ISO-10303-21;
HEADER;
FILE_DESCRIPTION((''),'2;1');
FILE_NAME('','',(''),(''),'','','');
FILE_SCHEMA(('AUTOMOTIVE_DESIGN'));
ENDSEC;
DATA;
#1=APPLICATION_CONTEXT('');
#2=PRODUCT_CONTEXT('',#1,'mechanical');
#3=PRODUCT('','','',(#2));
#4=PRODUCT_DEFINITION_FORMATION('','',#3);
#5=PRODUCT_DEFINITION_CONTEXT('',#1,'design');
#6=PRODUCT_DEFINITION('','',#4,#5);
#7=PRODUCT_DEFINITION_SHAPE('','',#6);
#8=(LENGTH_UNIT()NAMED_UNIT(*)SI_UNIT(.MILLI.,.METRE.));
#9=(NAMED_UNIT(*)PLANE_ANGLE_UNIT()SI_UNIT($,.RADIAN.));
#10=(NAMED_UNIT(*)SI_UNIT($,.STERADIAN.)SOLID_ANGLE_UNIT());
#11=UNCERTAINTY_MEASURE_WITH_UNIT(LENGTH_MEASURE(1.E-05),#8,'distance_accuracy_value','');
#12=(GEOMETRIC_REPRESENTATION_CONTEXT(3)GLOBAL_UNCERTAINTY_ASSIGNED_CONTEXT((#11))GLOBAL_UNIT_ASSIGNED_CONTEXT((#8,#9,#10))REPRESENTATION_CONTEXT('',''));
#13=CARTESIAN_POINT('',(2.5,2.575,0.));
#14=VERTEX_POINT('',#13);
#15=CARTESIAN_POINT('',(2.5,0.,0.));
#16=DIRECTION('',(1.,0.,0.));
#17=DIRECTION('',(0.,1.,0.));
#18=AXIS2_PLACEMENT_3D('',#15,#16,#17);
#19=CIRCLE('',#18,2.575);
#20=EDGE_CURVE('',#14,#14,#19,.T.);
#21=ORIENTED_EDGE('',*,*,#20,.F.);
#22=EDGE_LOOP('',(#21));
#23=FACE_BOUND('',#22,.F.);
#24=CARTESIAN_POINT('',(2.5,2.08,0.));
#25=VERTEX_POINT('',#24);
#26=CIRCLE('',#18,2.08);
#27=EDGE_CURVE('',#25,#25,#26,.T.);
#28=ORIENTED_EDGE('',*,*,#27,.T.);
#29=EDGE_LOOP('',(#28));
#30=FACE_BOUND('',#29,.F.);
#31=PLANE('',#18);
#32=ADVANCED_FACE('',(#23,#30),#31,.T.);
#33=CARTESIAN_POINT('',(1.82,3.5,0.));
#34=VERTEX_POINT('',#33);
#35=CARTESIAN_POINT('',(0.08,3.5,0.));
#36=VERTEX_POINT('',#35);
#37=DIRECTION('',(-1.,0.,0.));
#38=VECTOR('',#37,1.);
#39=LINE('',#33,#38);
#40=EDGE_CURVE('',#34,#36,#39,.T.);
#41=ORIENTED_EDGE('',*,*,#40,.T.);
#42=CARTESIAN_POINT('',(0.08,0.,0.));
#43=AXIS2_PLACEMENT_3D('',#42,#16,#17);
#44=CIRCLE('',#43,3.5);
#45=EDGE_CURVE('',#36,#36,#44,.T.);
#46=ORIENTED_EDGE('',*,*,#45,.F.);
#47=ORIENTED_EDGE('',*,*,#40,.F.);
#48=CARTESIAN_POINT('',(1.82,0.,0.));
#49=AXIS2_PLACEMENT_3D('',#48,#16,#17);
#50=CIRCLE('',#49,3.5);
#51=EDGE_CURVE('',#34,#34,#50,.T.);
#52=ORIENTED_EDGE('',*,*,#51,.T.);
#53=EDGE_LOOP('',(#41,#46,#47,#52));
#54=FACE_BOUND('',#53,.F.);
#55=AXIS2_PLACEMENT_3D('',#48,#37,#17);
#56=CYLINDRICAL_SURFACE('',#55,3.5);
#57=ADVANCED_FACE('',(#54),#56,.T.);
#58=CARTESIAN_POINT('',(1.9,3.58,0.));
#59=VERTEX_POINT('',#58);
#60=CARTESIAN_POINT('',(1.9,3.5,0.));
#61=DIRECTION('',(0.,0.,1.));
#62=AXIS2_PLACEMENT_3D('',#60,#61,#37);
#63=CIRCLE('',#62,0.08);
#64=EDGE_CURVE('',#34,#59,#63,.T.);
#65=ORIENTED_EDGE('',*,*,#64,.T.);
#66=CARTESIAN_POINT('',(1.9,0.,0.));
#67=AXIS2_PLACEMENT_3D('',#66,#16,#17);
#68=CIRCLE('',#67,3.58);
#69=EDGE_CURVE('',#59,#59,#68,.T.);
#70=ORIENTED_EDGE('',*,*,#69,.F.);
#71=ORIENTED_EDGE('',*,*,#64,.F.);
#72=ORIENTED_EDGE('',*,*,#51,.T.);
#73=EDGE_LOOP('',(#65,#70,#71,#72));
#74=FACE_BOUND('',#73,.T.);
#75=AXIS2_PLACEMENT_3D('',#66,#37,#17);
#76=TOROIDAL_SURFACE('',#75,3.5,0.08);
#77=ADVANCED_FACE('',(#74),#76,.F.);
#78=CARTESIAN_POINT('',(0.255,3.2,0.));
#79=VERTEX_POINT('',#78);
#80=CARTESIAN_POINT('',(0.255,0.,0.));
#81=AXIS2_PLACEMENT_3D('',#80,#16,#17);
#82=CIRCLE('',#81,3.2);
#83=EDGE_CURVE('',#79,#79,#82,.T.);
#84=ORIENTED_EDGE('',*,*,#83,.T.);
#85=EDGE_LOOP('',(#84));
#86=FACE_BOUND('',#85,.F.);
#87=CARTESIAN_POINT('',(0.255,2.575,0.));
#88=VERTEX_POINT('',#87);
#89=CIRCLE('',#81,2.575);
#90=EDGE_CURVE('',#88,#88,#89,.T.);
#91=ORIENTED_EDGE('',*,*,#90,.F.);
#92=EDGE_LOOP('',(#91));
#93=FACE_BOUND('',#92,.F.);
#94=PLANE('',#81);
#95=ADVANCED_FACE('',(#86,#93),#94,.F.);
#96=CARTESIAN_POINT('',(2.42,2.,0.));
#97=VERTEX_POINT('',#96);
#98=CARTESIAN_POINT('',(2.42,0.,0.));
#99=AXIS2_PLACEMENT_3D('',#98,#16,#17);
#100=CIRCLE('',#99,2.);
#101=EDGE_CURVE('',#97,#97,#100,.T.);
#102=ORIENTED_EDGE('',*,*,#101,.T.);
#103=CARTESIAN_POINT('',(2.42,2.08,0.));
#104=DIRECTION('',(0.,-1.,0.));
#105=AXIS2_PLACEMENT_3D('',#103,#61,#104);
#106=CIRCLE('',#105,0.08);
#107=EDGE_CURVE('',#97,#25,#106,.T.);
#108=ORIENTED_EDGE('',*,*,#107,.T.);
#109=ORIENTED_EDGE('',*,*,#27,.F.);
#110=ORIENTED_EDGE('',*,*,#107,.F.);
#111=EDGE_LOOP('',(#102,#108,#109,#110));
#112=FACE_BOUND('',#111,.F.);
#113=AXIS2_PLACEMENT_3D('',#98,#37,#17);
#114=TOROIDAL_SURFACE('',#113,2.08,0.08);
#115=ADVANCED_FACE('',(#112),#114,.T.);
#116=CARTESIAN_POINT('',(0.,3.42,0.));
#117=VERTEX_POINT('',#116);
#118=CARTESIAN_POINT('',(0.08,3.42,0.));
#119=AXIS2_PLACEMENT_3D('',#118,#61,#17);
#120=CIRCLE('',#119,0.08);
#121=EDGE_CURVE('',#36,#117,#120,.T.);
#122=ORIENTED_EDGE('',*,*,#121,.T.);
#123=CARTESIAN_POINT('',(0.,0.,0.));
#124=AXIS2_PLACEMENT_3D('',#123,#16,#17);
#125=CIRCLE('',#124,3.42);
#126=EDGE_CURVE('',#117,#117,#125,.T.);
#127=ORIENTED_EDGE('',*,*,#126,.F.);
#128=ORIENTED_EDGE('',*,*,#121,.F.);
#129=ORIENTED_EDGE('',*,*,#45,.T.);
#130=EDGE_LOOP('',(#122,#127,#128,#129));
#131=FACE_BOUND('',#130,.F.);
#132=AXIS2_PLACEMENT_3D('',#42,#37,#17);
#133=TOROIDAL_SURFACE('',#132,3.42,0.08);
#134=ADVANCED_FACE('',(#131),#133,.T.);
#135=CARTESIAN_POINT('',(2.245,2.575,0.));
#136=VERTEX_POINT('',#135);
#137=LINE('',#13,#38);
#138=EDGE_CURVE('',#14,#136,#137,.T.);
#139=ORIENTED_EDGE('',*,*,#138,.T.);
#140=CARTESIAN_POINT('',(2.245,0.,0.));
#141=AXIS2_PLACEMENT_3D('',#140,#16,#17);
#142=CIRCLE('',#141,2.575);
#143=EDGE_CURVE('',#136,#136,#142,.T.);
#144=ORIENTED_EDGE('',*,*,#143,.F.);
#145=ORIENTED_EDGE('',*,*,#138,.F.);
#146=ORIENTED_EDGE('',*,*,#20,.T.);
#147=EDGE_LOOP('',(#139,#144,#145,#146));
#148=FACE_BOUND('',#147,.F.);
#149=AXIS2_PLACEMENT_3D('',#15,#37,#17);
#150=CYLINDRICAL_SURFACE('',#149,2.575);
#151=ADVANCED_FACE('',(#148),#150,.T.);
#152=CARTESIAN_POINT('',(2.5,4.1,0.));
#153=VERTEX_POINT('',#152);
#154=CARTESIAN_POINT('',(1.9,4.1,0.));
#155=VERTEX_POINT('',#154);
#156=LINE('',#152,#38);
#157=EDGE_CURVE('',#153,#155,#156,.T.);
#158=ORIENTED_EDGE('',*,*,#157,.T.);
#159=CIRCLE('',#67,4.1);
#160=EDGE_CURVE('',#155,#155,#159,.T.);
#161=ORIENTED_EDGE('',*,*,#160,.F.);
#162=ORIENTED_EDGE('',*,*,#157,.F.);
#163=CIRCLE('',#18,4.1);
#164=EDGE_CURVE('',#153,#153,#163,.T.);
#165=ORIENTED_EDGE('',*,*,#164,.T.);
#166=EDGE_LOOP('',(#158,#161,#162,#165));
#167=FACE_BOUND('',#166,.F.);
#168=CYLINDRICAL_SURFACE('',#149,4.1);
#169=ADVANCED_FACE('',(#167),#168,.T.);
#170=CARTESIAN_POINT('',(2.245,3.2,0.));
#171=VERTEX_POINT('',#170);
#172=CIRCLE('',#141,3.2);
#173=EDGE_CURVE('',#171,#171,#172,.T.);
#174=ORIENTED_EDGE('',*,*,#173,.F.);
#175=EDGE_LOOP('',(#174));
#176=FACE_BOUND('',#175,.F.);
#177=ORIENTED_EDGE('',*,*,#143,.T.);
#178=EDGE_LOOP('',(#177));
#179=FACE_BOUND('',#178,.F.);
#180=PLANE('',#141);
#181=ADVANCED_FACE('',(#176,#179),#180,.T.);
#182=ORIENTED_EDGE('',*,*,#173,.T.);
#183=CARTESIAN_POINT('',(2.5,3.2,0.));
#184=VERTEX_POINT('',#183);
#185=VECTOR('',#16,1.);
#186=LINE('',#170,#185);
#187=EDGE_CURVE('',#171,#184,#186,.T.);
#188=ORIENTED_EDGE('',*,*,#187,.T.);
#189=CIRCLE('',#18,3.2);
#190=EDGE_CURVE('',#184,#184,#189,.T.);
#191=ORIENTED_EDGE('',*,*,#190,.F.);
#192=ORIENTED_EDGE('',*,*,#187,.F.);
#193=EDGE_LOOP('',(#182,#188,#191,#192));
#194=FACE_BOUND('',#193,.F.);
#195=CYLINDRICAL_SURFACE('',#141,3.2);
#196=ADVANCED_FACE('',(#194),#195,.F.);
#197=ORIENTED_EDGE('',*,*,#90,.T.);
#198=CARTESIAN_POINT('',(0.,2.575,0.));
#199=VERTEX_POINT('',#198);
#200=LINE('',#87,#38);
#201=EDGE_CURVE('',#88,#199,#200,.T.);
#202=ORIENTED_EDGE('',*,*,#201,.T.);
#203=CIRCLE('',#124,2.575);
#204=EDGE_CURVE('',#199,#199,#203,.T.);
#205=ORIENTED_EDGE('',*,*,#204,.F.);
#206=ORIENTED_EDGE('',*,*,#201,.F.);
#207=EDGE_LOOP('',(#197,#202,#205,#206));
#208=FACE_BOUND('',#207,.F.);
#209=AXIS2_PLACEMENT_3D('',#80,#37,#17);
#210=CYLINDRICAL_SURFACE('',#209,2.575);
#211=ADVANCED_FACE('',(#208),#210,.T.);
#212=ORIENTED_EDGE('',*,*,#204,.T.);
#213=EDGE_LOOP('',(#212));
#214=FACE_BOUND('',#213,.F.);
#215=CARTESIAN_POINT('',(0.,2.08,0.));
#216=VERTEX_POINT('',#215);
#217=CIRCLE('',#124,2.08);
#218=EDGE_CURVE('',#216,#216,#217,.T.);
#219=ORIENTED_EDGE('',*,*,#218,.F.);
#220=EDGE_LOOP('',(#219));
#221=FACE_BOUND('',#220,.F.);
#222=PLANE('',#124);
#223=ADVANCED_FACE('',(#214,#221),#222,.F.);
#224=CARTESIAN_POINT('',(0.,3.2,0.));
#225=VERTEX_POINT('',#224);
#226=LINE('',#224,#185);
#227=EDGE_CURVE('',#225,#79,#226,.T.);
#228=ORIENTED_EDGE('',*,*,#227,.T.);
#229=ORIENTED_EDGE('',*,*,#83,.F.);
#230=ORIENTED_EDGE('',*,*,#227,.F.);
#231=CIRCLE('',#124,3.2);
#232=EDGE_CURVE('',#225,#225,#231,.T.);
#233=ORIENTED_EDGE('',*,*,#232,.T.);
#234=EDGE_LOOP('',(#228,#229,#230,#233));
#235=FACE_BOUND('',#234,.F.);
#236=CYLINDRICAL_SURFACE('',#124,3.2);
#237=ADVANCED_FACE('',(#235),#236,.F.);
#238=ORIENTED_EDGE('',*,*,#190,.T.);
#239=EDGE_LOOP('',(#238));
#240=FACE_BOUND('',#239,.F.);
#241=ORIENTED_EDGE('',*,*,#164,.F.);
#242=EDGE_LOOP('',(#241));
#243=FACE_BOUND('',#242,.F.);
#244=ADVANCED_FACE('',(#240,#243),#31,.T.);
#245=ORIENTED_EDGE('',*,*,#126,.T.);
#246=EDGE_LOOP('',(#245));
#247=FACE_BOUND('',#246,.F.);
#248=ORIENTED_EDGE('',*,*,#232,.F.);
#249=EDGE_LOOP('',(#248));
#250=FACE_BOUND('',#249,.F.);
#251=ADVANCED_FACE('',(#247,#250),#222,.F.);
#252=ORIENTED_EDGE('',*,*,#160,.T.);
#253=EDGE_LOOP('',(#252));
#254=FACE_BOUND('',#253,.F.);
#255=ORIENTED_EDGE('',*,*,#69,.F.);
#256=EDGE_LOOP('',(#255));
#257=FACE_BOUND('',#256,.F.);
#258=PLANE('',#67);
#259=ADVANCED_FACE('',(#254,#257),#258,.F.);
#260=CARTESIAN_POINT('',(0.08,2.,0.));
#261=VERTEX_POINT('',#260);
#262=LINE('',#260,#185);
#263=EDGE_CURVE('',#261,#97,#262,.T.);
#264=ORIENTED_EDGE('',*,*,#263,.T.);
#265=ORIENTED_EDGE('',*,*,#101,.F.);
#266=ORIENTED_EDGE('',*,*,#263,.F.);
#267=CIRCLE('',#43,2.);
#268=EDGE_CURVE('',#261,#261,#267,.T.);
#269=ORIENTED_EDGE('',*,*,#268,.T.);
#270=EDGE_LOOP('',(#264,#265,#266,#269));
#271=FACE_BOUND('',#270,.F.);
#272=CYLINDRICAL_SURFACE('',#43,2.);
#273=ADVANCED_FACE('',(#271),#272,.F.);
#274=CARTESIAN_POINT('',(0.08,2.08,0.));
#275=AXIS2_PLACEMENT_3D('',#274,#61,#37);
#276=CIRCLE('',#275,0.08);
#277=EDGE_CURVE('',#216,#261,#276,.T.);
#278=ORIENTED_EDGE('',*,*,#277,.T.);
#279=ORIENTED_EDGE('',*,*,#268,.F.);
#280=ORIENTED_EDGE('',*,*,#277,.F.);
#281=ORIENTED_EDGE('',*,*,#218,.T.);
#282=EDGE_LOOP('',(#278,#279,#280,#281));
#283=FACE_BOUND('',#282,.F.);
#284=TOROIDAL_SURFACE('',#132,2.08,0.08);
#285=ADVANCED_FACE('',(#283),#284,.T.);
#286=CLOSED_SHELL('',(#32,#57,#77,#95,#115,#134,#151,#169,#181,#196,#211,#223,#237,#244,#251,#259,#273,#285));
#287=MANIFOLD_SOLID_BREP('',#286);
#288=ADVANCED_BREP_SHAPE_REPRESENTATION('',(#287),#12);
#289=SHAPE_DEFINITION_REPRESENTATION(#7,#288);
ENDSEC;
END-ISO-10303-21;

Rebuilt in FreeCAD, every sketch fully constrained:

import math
import FreeCAD as App
import Part
import Sketcher

V = App.Vector

doc = App.newDocument("Part")
body = doc.addObject("PartDesign::Body", "Body")

# Sketch on XY plane
sketch1 = body.newObject("Sketcher::SketchObject", "Sketch")
sketch1.AttachmentSupport = (doc.getObject("XY_Plane"), [""])
sketch1.MapMode = "FlatFace"
sketch1.addGeometry([
    Part.LineSegment(V(0, 2.575, 0), V(0, 2.08, 0)),  # 0
    Part.ArcOfCircle(Part.Circle(V(0.08, 2.08, 0), V(0, 0, 1), 0.08), math.radians(180), math.radians(270)),  # 1
    Part.LineSegment(V(0.08, 2, 0), V(2.42, 2, 0)),  # 2
    Part.ArcOfCircle(Part.Circle(V(2.42, 2.08, 0), V(0, 0, 1), 0.08), math.radians(-90), math.radians(0)),  # 3
    Part.LineSegment(V(2.5, 2.08, 0), V(2.5, 2.575, 0)),  # 4
    Part.LineSegment(V(2.5, 2.575, 0), V(2.245, 2.575, 0)),  # 5
    Part.LineSegment(V(2.245, 2.575, 0), V(2.245, 3.2, 0)),  # 6
    Part.LineSegment(V(2.245, 3.2, 0), V(2.5, 3.2, 0)),  # 7
    Part.LineSegment(V(2.5, 3.2, 0), V(2.5, 4.1, 0)),  # 8
    Part.LineSegment(V(2.5, 4.1, 0), V(1.9, 4.1, 0)),  # 9
    Part.LineSegment(V(1.9, 4.1, 0), V(1.9, 3.58, 0)),  # 10
    Part.ArcOfCircle(Part.Circle(V(1.9, 3.5, 0), V(0, 0, 1), 0.08), math.radians(180), math.radians(450)),  # 11
    Part.LineSegment(V(1.82, 3.5, 0), V(0.08, 3.5, 0)),  # 12
    Part.ArcOfCircle(Part.Circle(V(0.08, 3.42, 0), V(0, 0, 1), 0.08), math.radians(90), math.radians(180)),  # 13
    Part.LineSegment(V(0, 3.42, 0), V(0, 3.2, 0)),  # 14
    Part.LineSegment(V(0, 3.2, 0), V(0.255, 3.2, 0)),  # 15
    Part.LineSegment(V(0.255, 3.2, 0), V(0.255, 2.575, 0)),  # 16
    Part.LineSegment(V(0.255, 2.575, 0), V(0, 2.575, 0)),  # 17
], False)
sketch1.addConstraint([
    Sketcher.Constraint("Tangent", 0, 2, 1, 1),
    Sketcher.Constraint("Tangent", 1, 2, 2, 1),
    Sketcher.Constraint("Tangent", 2, 2, 3, 1),
    Sketcher.Constraint("Tangent", 3, 2, 4, 1),
    Sketcher.Constraint("Coincident", 4, 2, 5, 1),
    Sketcher.Constraint("Coincident", 5, 2, 6, 1),
    Sketcher.Constraint("Coincident", 6, 2, 7, 1),
    Sketcher.Constraint("Coincident", 7, 2, 8, 1),
    Sketcher.Constraint("Coincident", 8, 2, 9, 1),
    Sketcher.Constraint("Coincident", 9, 2, 10, 1),
    Sketcher.Constraint("Coincident", 10, 2, 11, 2),
    Sketcher.Constraint("Coincident", 11, 1, 12, 1),
    Sketcher.Constraint("Tangent", 12, 2, 13, 1),
    Sketcher.Constraint("Tangent", 13, 2, 14, 1),
    Sketcher.Constraint("Coincident", 14, 2, 15, 1),
    Sketcher.Constraint("Coincident", 15, 2, 16, 1),
    Sketcher.Constraint("Coincident", 16, 2, 17, 1),
    Sketcher.Constraint("Coincident", 17, 2, 0, 1),
    Sketcher.Constraint("Vertical", 0),
    Sketcher.Constraint("Horizontal", 2),
    Sketcher.Constraint("Vertical", 4),
    Sketcher.Constraint("Horizontal", 5),
    Sketcher.Constraint("Vertical", 6),
    Sketcher.Constraint("Horizontal", 7),
    Sketcher.Constraint("Vertical", 8),
    Sketcher.Constraint("Horizontal", 9),
    Sketcher.Constraint("Vertical", 10),
    Sketcher.Constraint("Horizontal", 12),
    Sketcher.Constraint("Vertical", 14),
    Sketcher.Constraint("Horizontal", 15),
    Sketcher.Constraint("Vertical", 16),
    Sketcher.Constraint("Horizontal", 17),
    Sketcher.Constraint("Equal", 1, 3),
    Sketcher.Constraint("Equal", 3, 11),
    Sketcher.Constraint("Equal", 11, 13),
    Sketcher.Constraint("PointOnObject", 0, 2, -2),
    Sketcher.Constraint("PointOnObject", 13, 2, -2),
    Sketcher.Constraint("Horizontal", 7, 2, 14, 2),
    Sketcher.Constraint("Horizontal", 5, 2, 16, 2),
    Sketcher.Constraint("Vertical", 4, 2, 7, 2),
    Sketcher.Constraint("Vertical", 11, 3, 9, 2),
    Sketcher.Constraint("Equal", 7, 15),
    Sketcher.Constraint("Radius", 1, 0.08),
    Sketcher.Constraint("DistanceX", 9, 2, 9, 1, 0.6),
    Sketcher.Constraint("DistanceY", 8, 1, 8, 2, 0.9),
    Sketcher.Constraint("DistanceY", -1, 1, 1, 2, 2.0),
    Sketcher.Constraint("DistanceX", 2, 1, 2, 2, 2.34),
    Sketcher.Constraint("DistanceY", 10, 2, 10, 1, 0.52),
    Sketcher.Constraint("DistanceY", 14, 2, 14, 1, 0.22),
    Sketcher.Constraint("DistanceY", -1, 1, 11, 3, 3.5),
    Sketcher.Constraint("DistanceX", 5, 2, 5, 1, 0.255),
    Sketcher.Constraint("DistanceY", 0, 2, 0, 1, 0.495),
])
revolution = body.newObject("PartDesign::Revolution", "Revolution")
revolution.Profile = sketch1
revolution.ReferenceAxis = (sketch1, ["H_Axis"])
revolution.Angle = 360

doc.recompute()
